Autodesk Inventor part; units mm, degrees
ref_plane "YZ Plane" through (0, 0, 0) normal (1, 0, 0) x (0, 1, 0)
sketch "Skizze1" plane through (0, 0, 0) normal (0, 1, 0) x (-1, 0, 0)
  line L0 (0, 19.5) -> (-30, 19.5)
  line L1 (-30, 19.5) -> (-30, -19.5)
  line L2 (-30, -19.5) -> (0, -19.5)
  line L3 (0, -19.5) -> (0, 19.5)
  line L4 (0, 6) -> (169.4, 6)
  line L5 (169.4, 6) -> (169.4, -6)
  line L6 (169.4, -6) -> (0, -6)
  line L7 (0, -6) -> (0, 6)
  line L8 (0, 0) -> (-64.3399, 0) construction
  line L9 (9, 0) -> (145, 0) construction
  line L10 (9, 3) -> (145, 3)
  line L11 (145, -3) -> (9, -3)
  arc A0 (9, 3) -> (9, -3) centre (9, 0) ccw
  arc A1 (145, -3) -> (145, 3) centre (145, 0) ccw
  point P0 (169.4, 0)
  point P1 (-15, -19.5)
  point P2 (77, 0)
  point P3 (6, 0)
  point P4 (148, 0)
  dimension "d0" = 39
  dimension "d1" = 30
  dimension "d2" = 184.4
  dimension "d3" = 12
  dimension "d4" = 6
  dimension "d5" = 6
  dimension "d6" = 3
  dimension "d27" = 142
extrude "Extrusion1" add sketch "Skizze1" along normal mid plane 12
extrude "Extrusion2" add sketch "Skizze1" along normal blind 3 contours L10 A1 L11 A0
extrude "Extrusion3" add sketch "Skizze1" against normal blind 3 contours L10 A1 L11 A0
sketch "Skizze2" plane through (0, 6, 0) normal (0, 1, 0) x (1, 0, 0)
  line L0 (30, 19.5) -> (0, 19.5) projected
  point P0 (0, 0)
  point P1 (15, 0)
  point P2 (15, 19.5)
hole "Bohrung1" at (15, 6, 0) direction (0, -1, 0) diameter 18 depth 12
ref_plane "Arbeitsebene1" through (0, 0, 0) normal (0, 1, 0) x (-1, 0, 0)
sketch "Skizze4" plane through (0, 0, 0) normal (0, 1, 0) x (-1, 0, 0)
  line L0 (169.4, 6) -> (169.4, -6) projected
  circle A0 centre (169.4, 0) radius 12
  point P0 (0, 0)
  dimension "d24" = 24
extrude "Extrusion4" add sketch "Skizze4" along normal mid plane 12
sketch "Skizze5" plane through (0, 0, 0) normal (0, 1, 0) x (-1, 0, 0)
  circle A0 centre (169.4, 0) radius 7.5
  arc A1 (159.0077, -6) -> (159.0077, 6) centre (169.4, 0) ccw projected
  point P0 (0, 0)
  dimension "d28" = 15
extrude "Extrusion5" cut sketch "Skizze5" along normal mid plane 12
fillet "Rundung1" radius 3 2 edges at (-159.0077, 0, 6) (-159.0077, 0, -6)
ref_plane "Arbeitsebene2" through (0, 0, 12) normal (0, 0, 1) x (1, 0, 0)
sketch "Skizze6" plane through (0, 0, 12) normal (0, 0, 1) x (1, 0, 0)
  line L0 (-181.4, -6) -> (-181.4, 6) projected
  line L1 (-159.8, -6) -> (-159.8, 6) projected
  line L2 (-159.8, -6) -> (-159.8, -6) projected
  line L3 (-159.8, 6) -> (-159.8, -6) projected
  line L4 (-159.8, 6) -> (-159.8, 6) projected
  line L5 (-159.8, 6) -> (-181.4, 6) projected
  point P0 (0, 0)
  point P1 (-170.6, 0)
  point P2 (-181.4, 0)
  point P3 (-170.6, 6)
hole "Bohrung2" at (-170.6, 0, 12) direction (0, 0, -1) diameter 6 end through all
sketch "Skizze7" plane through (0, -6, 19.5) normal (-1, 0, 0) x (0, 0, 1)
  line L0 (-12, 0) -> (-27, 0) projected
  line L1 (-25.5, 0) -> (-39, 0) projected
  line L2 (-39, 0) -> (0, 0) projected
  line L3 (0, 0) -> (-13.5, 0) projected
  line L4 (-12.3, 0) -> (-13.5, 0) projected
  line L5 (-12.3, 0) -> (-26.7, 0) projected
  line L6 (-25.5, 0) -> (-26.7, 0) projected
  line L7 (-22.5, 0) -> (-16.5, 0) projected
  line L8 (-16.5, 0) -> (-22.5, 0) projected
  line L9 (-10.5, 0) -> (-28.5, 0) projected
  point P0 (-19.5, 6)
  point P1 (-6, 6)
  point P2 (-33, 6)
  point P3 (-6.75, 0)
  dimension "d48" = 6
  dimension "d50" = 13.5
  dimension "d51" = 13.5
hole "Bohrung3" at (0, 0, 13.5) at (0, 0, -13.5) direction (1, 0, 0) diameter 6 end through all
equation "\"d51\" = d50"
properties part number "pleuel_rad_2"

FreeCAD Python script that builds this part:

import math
import FreeCAD as App
import Part
import Sketcher

V = App.Vector
Q = App.Units.Quantity


def edges_at(feature, points):
    """Names of the edges that pass closest to the given points."""
    edges = feature.Shape.Edges
    near = lambda p: min(range(len(edges)), key=lambda i: edges[i].distToShape(Part.Vertex(*p))[0])
    return sorted({f"Edge{near(p) + 1}" for p in points})


def add_polygon(sketch, points):
    """Adds a closed chain of lines whose ends are joined by coincident constraints."""
    first, n = sketch.GeometryCount, len(points)
    for a, b in zip(points, points[1:] + points[:1]):
        sketch.addGeometry(Part.LineSegment(App.Vector(*a, 0), App.Vector(*b, 0)), False)
    for i in range(n):
        sketch.addConstraint(Sketcher.Constraint("Coincident", first + i, 2, first + (i + 1) % n, 1))

doc = App.newDocument("Part")
params = doc.addObject("Spreadsheet::Sheet", "Params")
for row, (alias, value) in enumerate([
    ("sketch1_radius", "3 mm"),
    ("sketch1_width", "30 mm"),
    ("sketch1_height", "39 mm"),
    ("sketch1_height2", "12 mm"),
    ("sketch1_width2", "136 mm"),
    ("pad1_length", "12 mm"),
    ("sketch2_radius", "3 mm"),
    ("sketch2_width", "136 mm"),
    ("pad2_length", "3 mm"),
    ("sketch3_radius", "3 mm"),
    ("sketch3_width", "136 mm"),
    ("pad3_length", "3 mm"),
    ("sketch4_diameter", "18 mm"),
    ("hole_diameter", "18 mm"),
    ("hole_depth", "12 mm"),
    ("sketch5_diameter", "24 mm"),
    ("pad4_length", "12 mm"),
    ("sketch6_diameter", "15 mm"),
    ("pocket1_length", "12 mm"),
    ("fillet_radius", "3 mm"),
    ("sketch7_diameter", "6 mm"),
    ("hole2_diameter", "6 mm"),
    ("sketch8_diameter", "6 mm"),
    ("hole3_diameter", "6 mm"),
], start=1):
    params.set(f"A{row}", alias)
    params.set(f"B{row}", "=" + value)
    params.setAlias(f"B{row}", alias)

body = doc.addObject("PartDesign::Body", "Body")

sketch1 = body.newObject("Sketcher::SketchObject", "Sketch")
sketch1.AttachmentSupport = (doc.getObject("XZ_Plane"), [""])
sketch1.MapMode = "FlatFace"
add_polygon(sketch1, [(0, 6), (0, 19.5), (30, 19.5), (30, -19.5), (0, -19.5), (0, -6), (-169.4, -6), (-169.4, 6)])
sketch1.addGeometry(Part.LineSegment(V(-9, 3, 0), V(-145, 3, 0)), False)
sketch1.addGeometry(Part.ArcOfCircle(Part.Circle(V(-145, 0, 0), V(0, 0, 1), 3), math.radians(90), math.radians(270)), False)
sketch1.addGeometry(Part.LineSegment(V(-145, -3, 0), V(-9, -3, 0)), False)
sketch1.addGeometry(Part.ArcOfCircle(Part.Circle(V(-9, 0, 0), V(0, 0, 1), 3), math.radians(-90), math.radians(90)), False)
sketch1.addConstraint(Sketcher.Constraint("Tangent", 8, 2, 9, 1))
sketch1.addConstraint(Sketcher.Constraint("Tangent", 9, 2, 10, 1))
sketch1.addConstraint(Sketcher.Constraint("Tangent", 10, 2, 11, 1))
sketch1.addConstraint(Sketcher.Constraint("Tangent", 11, 2, 8, 1))
sketch1.addConstraint(Sketcher.Constraint("Vertical", 0))
sketch1.addConstraint(Sketcher.Constraint("Horizontal", 1))
sketch1.addConstraint(Sketcher.Constraint("Vertical", 2))
sketch1.addConstraint(Sketcher.Constraint("Horizontal", 3))
sketch1.addConstraint(Sketcher.Constraint("Vertical", 4))
sketch1.addConstraint(Sketcher.Constraint("Horizontal", 5))
sketch1.addConstraint(Sketcher.Constraint("Vertical", 6))
sketch1.addConstraint(Sketcher.Constraint("Horizontal", 7))
sketch1.addConstraint(Sketcher.Constraint("Horizontal", 8))
sketch1.addConstraint(Sketcher.Constraint("Horizontal", 10))
sketch1.addConstraint(Sketcher.Constraint("Symmetric", 0, 2, 3, 2, -1, 1))
sketch1.addConstraint(Sketcher.Constraint("Symmetric", 4, 2, 7, 2, -1))
sketch1.addConstraint(Sketcher.Constraint("PointOnObject", 9, 3, -1))
sketch1.addConstraint(Sketcher.Constraint("Radius", 9, Q("3 mm")))
sketch1.addConstraint(Sketcher.Constraint("DistanceX", 1, 1, 1, 2, Q("30 mm")))
sketch1.addConstraint(Sketcher.Constraint("DistanceY", 2, 2, 2, 1, Q("39 mm")))
sketch1.addConstraint(Sketcher.Constraint("DistanceY", 6, 1, 6, 2, Q("12 mm")))
sketch1.addConstraint(Sketcher.Constraint("DistanceX", 11, 3, 1, 2, Q("39 mm")))
sketch1.addConstraint(Sketcher.Constraint("DistanceX", 8, 2, 8, 1, Q("136 mm")))
sketch1.addConstraint(Sketcher.Constraint("DistanceX", 5, 2, 5, 1, Q("169.4 mm")))
sketch1.setExpression("Constraints[25]", "Params.sketch1_radius")
sketch1.setExpression("Constraints[26]", "Params.sketch1_width")
sketch1.setExpression("Constraints[27]", "Params.sketch1_height")
sketch1.setExpression("Constraints[28]", "Params.sketch1_height2")
sketch1.setExpression("Constraints[30]", "Params.sketch1_width2")
pad1 = body.newObject("PartDesign::Pad", "Pad")
pad1.Profile = sketch1
pad1.setExpression("Length", "Params.pad1_length")
pad1.Midplane = True

sketch2 = body.newObject("Sketcher::SketchObject", "Sketch001")
sketch2.AttachmentSupport = (doc.getObject("XZ_Plane"), [""])
sketch2.MapMode = "FlatFace"
sketch2.addGeometry(Part.LineSegment(V(-145, 3, 0), V(-9, 3, 0)), False)
sketch2.addGeometry(Part.ArcOfCircle(Part.Circle(V(-9, 0, 0), V(0, 0, 1), 3), math.radians(-90), math.radians(90)), False)
sketch2.addGeometry(Part.LineSegment(V(-9, -3, 0), V(-145, -3, 0)), False)
sketch2.addGeometry(Part.ArcOfCircle(Part.Circle(V(-145, 0, 0), V(0, 0, 1), 3), math.radians(90), math.radians(270)), False)
sketch2.addConstraint(Sketcher.Constraint("Tangent", 0, 2, 1, 2))
sketch2.addConstraint(Sketcher.Constraint("Tangent", 1, 1, 2, 1))
sketch2.addConstraint(Sketcher.Constraint("Tangent", 2, 2, 3, 2))
sketch2.addConstraint(Sketcher.Constraint("Tangent", 3, 1, 0, 1))
sketch2.addConstraint(Sketcher.Constraint("Horizontal", 0))
sketch2.addConstraint(Sketcher.Constraint("Horizontal", 2))
sketch2.addConstraint(Sketcher.Constraint("PointOnObject", 1, 3, -1))
sketch2.addConstraint(Sketcher.Constraint("Radius", 1, Q("3 mm")))
sketch2.addConstraint(Sketcher.Constraint("DistanceX", 0, 1, 0, 2, Q("136 mm")))
sketch2.addConstraint(Sketcher.Constraint("DistanceX", 1, 3, -1, 1, Q("9 mm")))
sketch2.setExpression("Constraints[7]", "Params.sketch2_radius")
sketch2.setExpression("Constraints[8]", "Params.sketch2_width")
pad2 = body.newObject("PartDesign::Pad", "Pad001")
pad2.Profile = sketch2
pad2.setExpression("Length", "Params.pad2_length")
pad2.Reversed = True

sketch3 = body.newObject("Sketcher::SketchObject", "Sketch002")
sketch3.AttachmentSupport = (doc.getObject("XZ_Plane"), [""])
sketch3.MapMode = "FlatFace"
sketch3.addGeometry(Part.LineSegment(V(-145, 3, 0), V(-9, 3, 0)), False)
sketch3.addGeometry(Part.ArcOfCircle(Part.Circle(V(-9, 0, 0), V(0, 0, 1), 3), math.radians(-90), math.radians(90)), False)
sketch3.addGeometry(Part.LineSegment(V(-9, -3, 0), V(-145, -3, 0)), False)
sketch3.addGeometry(Part.ArcOfCircle(Part.Circle(V(-145, 0, 0), V(0, 0, 1), 3), math.radians(90), math.radians(270)), False)
sketch3.addConstraint(Sketcher.Constraint("Tangent", 0, 2, 1, 2))
sketch3.addConstraint(Sketcher.Constraint("Tangent", 1, 1, 2, 1))
sketch3.addConstraint(Sketcher.Constraint("Tangent", 2, 2, 3, 2))
sketch3.addConstraint(Sketcher.Constraint("Tangent", 3, 1, 0, 1))
sketch3.addConstraint(Sketcher.Constraint("Horizontal", 0))
sketch3.addConstraint(Sketcher.Constraint("Horizontal", 2))
sketch3.addConstraint(Sketcher.Constraint("PointOnObject", 1, 3, -1))
sketch3.addConstraint(Sketcher.Constraint("Radius", 1, Q("3 mm")))
sketch3.addConstraint(Sketcher.Constraint("DistanceX", 0, 1, 0, 2, Q("136 mm")))
sketch3.addConstraint(Sketcher.Constraint("DistanceX", 1, 3, -1, 1, Q("9 mm")))
sketch3.setExpression("Constraints[7]", "Params.sketch3_radius")
sketch3.setExpression("Constraints[8]", "Params.sketch3_width")
pad3 = body.newObject("PartDesign::Pad", "Pad002")
pad3.Profile = sketch3
pad3.setExpression("Length", "Params.pad3_length")

sketch4 = body.newObject("Sketcher::SketchObject", "Sketch003")
sketch4.AttachmentSupport = (doc.getObject("XZ_Plane"), [""])
sketch4.MapMode = "FlatFace"
sketch4.AttachmentOffset = App.Placement(V(0, 0, -6), App.Rotation())
sketch4.addGeometry(Part.Circle(V(15, 0, 0), V(0, 0, 1), 9), False)
sketch4.addConstraint(Sketcher.Constraint("PointOnObject", 0, 3, -1))
sketch4.addConstraint(Sketcher.Constraint("Diameter", 0, Q("18 mm")))
sketch4.addConstraint(Sketcher.Constraint("DistanceX", -1, 1, 0, 3, Q("15 mm")))
sketch4.setExpression("Constraints[1]", "Params.sketch4_diameter")
doc.recompute()
hole = body.newObject("PartDesign::Hole", "Hole")
hole.Profile = sketch4
hole.ThreadType = "None"
hole.setExpression("Diameter", "Params.hole_diameter")
hole.DepthType = "Dimension"
hole.setExpression("Depth", "Params.hole_depth")
hole.DrillPoint = "Flat"
hole.Reversed = True

sketch5 = body.newObject("Sketcher::SketchObject", "Sketch004")
sketch5.AttachmentSupport = (doc.getObject("XZ_Plane"), [""])
sketch5.MapMode = "FlatFace"
sketch5.addGeometry(Part.Circle(V(-169.4, 0, 0), V(0, 0, 1), 12), False)
sketch5.addConstraint(Sketcher.Constraint("PointOnObject", 0, 3, -1))
sketch5.addConstraint(Sketcher.Constraint("Diameter", 0, Q("24 mm")))
sketch5.addConstraint(Sketcher.Constraint("DistanceX", 0, 3, -1, 1, Q("169.4 mm")))
sketch5.setExpression("Constraints[1]", "Params.sketch5_diameter")
pad4 = body.newObject("PartDesign::Pad", "Pad003")
pad4.Profile = sketch5
pad4.setExpression("Length", "Params.pad4_length")
pad4.Midplane = True

sketch6 = body.newObject("Sketcher::SketchObject", "Sketch005")
sketch6.AttachmentSupport = (doc.getObject("XZ_Plane"), [""])
sketch6.MapMode = "FlatFace"
sketch6.addGeometry(Part.Circle(V(-169.4, 0, 0), V(0, 0, 1), 7.5), False)
sketch6.addConstraint(Sketcher.Constraint("PointOnObject", 0, 3, -1))
sketch6.addConstraint(Sketcher.Constraint("Diameter", 0, Q("15 mm")))
sketch6.addConstraint(Sketcher.Constraint("DistanceX", 0, 3, -1, 1, Q("169.4 mm")))
sketch6.setExpression("Constraints[1]", "Params.sketch6_diameter")
pocket1 = body.newObject("PartDesign::Pocket", "Pocket")
pocket1.Profile = sketch6
pocket1.setExpression("Length", "Params.pocket1_length")
pocket1.Midplane = True
doc.recompute()

fillet = body.newObject("PartDesign::Fillet", "Fillet")
fillet.Base = (pocket1, edges_at(pocket1, [(-159.008, 0, 6), (-159.008, 0, -6)]))
fillet.setExpression("Radius", "Params.fillet_radius")

sketch7 = body.newObject("Sketcher::SketchObject", "Sketch006")
sketch7.AttachmentSupport = (doc.getObject("XY_Plane"), [""])
sketch7.MapMode = "FlatFace"
sketch7.AttachmentOffset = App.Placement(V(0, 0, 12), App.Rotation())
sketch7.addGeometry(Part.Circle(V(-170.6, 0, 0), V(0, 0, 1), 3), False)
sketch7.addConstraint(Sketcher.Constraint("PointOnObject", 0, 3, -1))
sketch7.addConstraint(Sketcher.Constraint("Diameter", 0, Q("6 mm")))
sketch7.addConstraint(Sketcher.Constraint("DistanceX", 0, 3, -1, 1, Q("170.6 mm")))
sketch7.setExpression("Constraints[1]", "Params.sketch7_diameter")
doc.recompute()
hole2 = body.newObject("PartDesign::Hole", "Hole001")
hole2.Profile = sketch7
hole2.ThreadType = "None"
hole2.setExpression("Diameter", "Params.hole2_diameter")
hole2.DepthType = "ThroughAll"

sketch8 = body.newObject("Sketcher::SketchObject", "Sketch007")
sketch8.AttachmentSupport = (doc.getObject("YZ_Plane"), [""])
sketch8.MapMode = "FlatFace"
sketch8.addGeometry(Part.Circle(V(0, 13.5, 0), V(0, 0, 1), 3), False)
sketch8.addGeometry(Part.Circle(V(0, -13.5, 0), V(0, 0, 1), 3), False)
sketch8.addConstraint(Sketcher.Constraint("Equal", 0, 1))
sketch8.addConstraint(Sketcher.Constraint("Symmetric", 0, 3, 1, 3, -1, 1))
sketch8.addConstraint(Sketcher.Constraint("PointOnObject", 0, 3, -2))
sketch8.addConstraint(Sketcher.Constraint("Diameter", 0, Q("6 mm")))
sketch8.addConstraint(Sketcher.Constraint("DistanceY", 1, 3, 0, 3, Q("27 mm")))
sketch8.setExpression("Constraints[3]", "Params.sketch8_diameter")
doc.recompute()
hole3 = body.newObject("PartDesign::Hole", "Hole002")
hole3.Profile = sketch8
hole3.ThreadType = "None"
hole3.setExpression("Diameter", "Params.hole3_diameter")
hole3.DepthType = "ThroughAll"
hole3.Reversed = True

doc.recompute()
